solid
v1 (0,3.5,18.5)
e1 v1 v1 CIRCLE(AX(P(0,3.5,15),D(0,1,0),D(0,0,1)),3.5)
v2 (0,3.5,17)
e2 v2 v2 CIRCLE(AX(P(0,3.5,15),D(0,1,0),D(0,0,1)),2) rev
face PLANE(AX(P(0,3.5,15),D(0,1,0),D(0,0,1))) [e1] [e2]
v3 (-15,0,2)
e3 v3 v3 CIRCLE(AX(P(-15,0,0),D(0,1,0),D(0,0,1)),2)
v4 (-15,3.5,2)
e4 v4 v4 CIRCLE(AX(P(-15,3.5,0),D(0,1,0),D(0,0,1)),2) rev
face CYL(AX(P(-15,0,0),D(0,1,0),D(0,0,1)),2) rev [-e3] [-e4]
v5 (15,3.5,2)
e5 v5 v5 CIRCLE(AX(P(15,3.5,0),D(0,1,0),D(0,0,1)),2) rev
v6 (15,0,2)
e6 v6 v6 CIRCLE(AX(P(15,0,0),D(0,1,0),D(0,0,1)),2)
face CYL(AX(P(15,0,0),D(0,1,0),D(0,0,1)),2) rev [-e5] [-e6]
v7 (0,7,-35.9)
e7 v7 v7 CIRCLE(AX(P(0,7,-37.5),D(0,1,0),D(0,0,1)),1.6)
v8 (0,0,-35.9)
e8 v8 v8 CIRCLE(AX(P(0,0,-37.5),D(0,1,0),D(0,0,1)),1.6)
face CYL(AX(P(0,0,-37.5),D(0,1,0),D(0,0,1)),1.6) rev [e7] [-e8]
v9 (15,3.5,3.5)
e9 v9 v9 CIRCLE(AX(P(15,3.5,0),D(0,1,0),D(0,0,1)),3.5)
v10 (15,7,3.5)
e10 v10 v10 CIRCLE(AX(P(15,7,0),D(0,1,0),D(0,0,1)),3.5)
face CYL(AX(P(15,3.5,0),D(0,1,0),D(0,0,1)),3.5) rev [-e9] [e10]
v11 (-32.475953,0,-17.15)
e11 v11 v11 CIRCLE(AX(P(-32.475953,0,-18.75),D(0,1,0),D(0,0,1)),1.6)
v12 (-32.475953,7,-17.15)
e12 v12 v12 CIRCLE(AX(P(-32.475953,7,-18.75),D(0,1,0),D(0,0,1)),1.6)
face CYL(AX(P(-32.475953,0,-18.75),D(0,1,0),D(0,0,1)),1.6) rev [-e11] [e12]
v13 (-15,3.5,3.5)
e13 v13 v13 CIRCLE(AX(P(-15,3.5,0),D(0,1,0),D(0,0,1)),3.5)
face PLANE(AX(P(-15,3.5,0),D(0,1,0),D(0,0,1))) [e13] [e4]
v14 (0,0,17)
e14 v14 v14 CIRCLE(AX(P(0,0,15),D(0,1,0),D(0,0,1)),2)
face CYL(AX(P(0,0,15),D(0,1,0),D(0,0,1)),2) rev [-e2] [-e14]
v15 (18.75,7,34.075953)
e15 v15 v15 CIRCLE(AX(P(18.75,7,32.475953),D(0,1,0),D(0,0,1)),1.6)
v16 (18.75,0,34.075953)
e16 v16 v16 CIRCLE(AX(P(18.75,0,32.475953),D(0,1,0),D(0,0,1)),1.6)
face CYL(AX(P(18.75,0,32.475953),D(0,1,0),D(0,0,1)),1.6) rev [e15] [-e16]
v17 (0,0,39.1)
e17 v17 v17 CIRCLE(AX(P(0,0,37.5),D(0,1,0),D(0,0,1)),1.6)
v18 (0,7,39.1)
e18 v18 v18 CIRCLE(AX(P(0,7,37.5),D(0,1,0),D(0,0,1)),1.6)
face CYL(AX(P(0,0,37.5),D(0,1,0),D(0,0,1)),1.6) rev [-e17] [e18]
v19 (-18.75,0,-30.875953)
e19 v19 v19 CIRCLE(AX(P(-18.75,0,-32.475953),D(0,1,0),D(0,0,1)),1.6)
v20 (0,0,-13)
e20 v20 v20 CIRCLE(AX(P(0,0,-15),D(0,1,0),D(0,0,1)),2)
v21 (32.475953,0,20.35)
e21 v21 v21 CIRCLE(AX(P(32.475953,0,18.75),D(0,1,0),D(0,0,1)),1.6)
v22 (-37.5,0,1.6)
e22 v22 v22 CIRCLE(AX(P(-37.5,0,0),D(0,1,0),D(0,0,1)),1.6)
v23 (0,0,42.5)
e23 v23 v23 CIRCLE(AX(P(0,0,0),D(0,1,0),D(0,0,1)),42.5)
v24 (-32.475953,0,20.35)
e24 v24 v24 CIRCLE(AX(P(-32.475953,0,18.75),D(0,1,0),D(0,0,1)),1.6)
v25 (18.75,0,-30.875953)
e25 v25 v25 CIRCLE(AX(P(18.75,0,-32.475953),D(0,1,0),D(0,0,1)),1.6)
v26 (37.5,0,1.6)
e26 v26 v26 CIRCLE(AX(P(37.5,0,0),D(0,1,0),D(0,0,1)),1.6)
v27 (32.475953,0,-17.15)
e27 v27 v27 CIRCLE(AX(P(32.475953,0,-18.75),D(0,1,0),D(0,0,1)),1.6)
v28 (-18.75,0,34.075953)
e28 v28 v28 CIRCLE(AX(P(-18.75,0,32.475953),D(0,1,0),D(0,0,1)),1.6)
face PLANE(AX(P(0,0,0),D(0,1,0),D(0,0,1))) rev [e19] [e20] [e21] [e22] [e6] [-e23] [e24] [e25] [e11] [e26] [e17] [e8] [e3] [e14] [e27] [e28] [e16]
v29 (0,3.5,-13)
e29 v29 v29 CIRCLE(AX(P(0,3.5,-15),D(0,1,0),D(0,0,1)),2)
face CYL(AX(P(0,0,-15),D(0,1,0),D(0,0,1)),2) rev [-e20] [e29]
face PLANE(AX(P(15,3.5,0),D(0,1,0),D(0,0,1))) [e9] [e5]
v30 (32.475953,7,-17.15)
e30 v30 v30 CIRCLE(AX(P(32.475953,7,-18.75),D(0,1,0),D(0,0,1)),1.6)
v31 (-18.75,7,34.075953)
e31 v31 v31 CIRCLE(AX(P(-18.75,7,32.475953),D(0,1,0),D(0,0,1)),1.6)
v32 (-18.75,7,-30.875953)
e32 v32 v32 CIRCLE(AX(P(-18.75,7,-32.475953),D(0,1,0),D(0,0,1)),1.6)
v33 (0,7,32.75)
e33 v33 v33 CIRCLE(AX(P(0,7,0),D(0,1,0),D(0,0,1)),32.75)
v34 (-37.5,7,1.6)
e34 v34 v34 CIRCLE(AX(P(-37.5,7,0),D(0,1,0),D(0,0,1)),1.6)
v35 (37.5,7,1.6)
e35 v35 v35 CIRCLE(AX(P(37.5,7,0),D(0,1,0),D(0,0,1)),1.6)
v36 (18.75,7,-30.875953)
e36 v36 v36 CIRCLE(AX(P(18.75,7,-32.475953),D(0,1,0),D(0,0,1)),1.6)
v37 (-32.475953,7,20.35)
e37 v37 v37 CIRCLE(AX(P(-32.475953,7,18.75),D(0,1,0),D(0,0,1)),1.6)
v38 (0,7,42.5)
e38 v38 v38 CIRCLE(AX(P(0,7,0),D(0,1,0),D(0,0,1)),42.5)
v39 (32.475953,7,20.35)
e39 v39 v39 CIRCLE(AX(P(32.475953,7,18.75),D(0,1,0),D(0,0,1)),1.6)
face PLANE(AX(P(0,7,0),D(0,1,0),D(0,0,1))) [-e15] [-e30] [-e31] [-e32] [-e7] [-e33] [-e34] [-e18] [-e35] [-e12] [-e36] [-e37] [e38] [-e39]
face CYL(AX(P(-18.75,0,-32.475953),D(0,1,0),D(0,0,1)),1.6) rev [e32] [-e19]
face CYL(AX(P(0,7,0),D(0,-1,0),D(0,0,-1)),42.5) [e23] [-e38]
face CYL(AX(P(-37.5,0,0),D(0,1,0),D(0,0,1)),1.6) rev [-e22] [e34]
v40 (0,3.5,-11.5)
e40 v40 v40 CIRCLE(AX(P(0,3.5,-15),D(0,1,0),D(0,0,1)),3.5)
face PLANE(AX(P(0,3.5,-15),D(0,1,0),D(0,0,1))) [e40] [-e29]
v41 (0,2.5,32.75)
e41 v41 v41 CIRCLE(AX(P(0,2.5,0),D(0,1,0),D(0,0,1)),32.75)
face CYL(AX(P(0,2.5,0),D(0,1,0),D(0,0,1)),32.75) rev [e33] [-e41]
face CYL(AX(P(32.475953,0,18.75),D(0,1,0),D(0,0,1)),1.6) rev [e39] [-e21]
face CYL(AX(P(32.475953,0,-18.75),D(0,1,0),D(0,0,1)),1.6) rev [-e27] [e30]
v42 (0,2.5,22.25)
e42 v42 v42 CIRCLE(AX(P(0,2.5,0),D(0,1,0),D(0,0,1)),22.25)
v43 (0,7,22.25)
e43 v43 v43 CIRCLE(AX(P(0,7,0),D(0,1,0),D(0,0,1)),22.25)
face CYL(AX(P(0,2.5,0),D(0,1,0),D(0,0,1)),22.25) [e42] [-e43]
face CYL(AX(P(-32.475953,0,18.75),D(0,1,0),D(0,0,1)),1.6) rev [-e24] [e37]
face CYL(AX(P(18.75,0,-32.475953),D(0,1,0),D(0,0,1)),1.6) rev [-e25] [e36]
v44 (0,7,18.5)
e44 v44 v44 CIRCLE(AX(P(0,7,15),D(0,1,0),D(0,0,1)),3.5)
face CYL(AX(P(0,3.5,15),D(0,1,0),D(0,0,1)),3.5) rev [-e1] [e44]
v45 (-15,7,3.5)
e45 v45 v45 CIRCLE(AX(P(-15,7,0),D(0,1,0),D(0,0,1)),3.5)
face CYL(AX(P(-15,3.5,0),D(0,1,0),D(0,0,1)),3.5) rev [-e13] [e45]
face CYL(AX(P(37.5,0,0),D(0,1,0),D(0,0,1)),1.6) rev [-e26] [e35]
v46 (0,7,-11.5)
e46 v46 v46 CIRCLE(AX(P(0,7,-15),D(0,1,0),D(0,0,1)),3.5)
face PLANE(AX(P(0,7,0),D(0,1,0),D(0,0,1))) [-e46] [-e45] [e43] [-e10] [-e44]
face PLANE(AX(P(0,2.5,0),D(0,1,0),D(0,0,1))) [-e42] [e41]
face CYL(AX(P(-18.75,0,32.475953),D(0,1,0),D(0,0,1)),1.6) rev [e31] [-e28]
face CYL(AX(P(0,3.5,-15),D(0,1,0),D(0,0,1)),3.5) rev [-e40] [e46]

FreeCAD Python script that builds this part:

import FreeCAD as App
import Part
import Sketcher
Q = App.Units.Quantity

doc = App.newDocument("Part")
params = doc.addObject("Spreadsheet::Sheet", "Params")
for row, (alias, value) in enumerate([
    ("sketch1_diameter", "85 mm"),
    ("pad1_length", "7 mm"),
    ("sketch2_diameter", "65.5 mm"),
    ("sketch2_diameter2", "44.5 mm"),
    ("pocket1_length", "4.5 mm"),
    ("sketch3_diameter", "3.2 mm"),
    ("sketch4_diameter", "4 mm"),
    ("sketch5_diameter", "7 mm"),
    ("sketch5_diameter2", "4 mm"),
    ("pocket4_length", "3.5 mm"),
], start=1):
    params.set(f"A{row}", alias)
    params.set(f"B{row}", "=" + value)
    params.setAlias(f"B{row}", alias)

body = doc.addObject("PartDesign::Body", "Body")

# Sketch on XZ plane
sketch1 = doc.addObject("Sketcher::SketchObject", "Sketch")
body.addObject(sketch1)
sketch1.AttachmentSupport = (doc.XZ_Plane, [""])
sketch1.MapMode = "FlatFace"
sketch1.addGeometry(Part.Circle(App.Vector(0, 0, 0), App.Vector(0, 0, 1), 42.5), False)
sketch1.addConstraint([
    Sketcher.Constraint("Coincident", 0, 3, -1, 1),
    Sketcher.Constraint("Diameter", 0, Q("85 mm")),
])
sketch1.setExpression("Constraints[1]", "Params.sketch1_diameter")
pad1 = doc.addObject("PartDesign::Pad", "Pad")
body.addObject(pad1)
pad1.Profile = sketch1
pad1.setExpression("Length", "Params.pad1_length")
pad1.Reversed = True

# Sketch on XZ plane
sketch2 = doc.addObject("Sketcher::SketchObject", "Sketch001")
body.addObject(sketch2)
sketch2.AttachmentSupport = (doc.XZ_Plane, [""])
sketch2.MapMode = "FlatFace"
sketch2.AttachmentOffset = App.Placement(App.Vector(0, 0, -7), App.Rotation())
sketch2.addGeometry([
    Part.Circle(App.Vector(0, 0, 0), App.Vector(0, 0, 1), 32.75),
    Part.Circle(App.Vector(0, 0, 0), App.Vector(0, 0, 1), 22.25),
], False)
sketch2.addConstraint([
    Sketcher.Constraint("Coincident", 0, 3, -1, 1),
    Sketcher.Constraint("Coincident", 1, 3, -1, 1),
    Sketcher.Constraint("Diameter", 0, Q("65.5 mm")),
    Sketcher.Constraint("Diameter", 1, Q("44.5 mm")),
])
sketch2.setExpression("Constraints[2]", "Params.sketch2_diameter")
sketch2.setExpression("Constraints[3]", "Params.sketch2_diameter2")
pocket1 = doc.addObject("PartDesign::Pocket", "Pocket")
body.addObject(pocket1)
pocket1.Profile = sketch2
pocket1.setExpression("Length", "Params.pocket1_length")
pocket1.Reversed = True

# Sketch on XZ plane
sketch3 = doc.addObject("Sketcher::SketchObject", "Sketch002")
body.addObject(sketch3)
sketch3.AttachmentSupport = (doc.XZ_Plane, [""])
sketch3.MapMode = "FlatFace"
sketch3.AttachmentOffset = App.Placement(App.Vector(0, 0, -7), App.Rotation())
sketch3.addGeometry([
    Part.Circle(App.Vector(0, -37.5, 0), App.Vector(0, 0, 1), 1.6),  # 0
    Part.Circle(App.Vector(18.75, -32.475953, 0), App.Vector(0, 0, 1), 1.6),  # 1
    Part.Circle(App.Vector(32.475953, -18.75, 0), App.Vector(0, 0, 1), 1.6),  # 2
    Part.Circle(App.Vector(37.5, 0, 0), App.Vector(0, 0, 1), 1.6),  # 3
    Part.Circle(App.Vector(32.475953, 18.75, 0), App.Vector(0, 0, 1), 1.6),  # 4
    Part.Circle(App.Vector(18.75, 32.475953, 0), App.Vector(0, 0, 1), 1.6),  # 5
    Part.Circle(App.Vector(0, 37.5, 0), App.Vector(0, 0, 1), 1.6),  # 6
    Part.Circle(App.Vector(-18.75, 32.475953, 0), App.Vector(0, 0, 1), 1.6),  # 7
    Part.Circle(App.Vector(-32.475953, 18.75, 0), App.Vector(0, 0, 1), 1.6),  # 8
    Part.Circle(App.Vector(-37.5, 0, 0), App.Vector(0, 0, 1), 1.6),  # 9
    Part.Circle(App.Vector(-32.475953, -18.75, 0), App.Vector(0, 0, 1), 1.6),  # 10
    Part.Circle(App.Vector(-18.75, -32.475953, 0), App.Vector(0, 0, 1), 1.6),  # 11
], False)
sketch3.addConstraint([
    Sketcher.Constraint("Equal", 0, 1),
    Sketcher.Constraint("Equal", 1, 2),
    Sketcher.Constraint("Equal", 2, 3),
    Sketcher.Constraint("Equal", 3, 4),
    Sketcher.Constraint("Equal", 4, 5),
    Sketcher.Constraint("Equal", 5, 6),
    Sketcher.Constraint("Equal", 6, 7),
    Sketcher.Constraint("Equal", 7, 8),
    Sketcher.Constraint("Equal", 8, 9),
    Sketcher.Constraint("Equal", 9, 10),
    Sketcher.Constraint("Equal", 10, 11),
    Sketcher.Constraint("Symmetric", 0, 3, 6, 3, -1, 1),
    Sketcher.Constraint("Symmetric", 1, 3, 7, 3, -1, 1),
    Sketcher.Constraint("Symmetric", 2, 3, 8, 3, -1, 1),
    Sketcher.Constraint("Symmetric", 3, 3, 9, 3, -1, 1),
    Sketcher.Constraint("Symmetric", 4, 3, 10, 3, -1, 1),
    Sketcher.Constraint("Symmetric", 5, 3, 11, 3, -1, 1),
    Sketcher.Constraint("Symmetric", 5, 3, 7, 3, -2),
    Sketcher.Constraint("Symmetric", 4, 3, 8, 3, -2),
    Sketcher.Constraint("PointOnObject", 0, 3, -2),
    Sketcher.Constraint("PointOnObject", 3, 3, -1),
    Sketcher.Constraint("Diameter", 0, Q("3.2 mm")),
    Sketcher.Constraint("DistanceY", 0, 3, -1, 1, Q("37.5 mm")),
    Sketcher.Constraint("DistanceX", -1, 1, 3, 3, Q("37.5 mm")),
    Sketcher.Constraint("DistanceY", 2, 3, 4, 3, Q("37.5 mm")),
    Sketcher.Constraint("DistanceX", 7, 3, 5, 3, Q("37.5 mm")),
    Sketcher.Constraint("DistanceY", 1, 3, -1, 1, Q("32.475953 mm")),
    Sketcher.Constraint("DistanceX", -1, 1, 2, 3, Q("32.475953 mm")),
])
sketch3.setExpression("Constraints[21]", "Params.sketch3_diameter")
pocket2 = doc.addObject("PartDesign::Pocket", "Pocket001")
body.addObject(pocket2)
pocket2.Profile = sketch3
pocket2.Type = "ThroughAll"
pocket2.Reversed = True

# Sketch on XZ plane
sketch4 = doc.addObject("Sketcher::SketchObject", "Sketch003")
body.addObject(sketch4)
sketch4.AttachmentSupport = (doc.XZ_Plane, [""])
sketch4.MapMode = "FlatFace"
sketch4.AttachmentOffset = App.Placement(App.Vector(0, 0, -7), App.Rotation())
sketch4.addGeometry([
    Part.Circle(App.Vector(0, -15, 0), App.Vector(0, 0, 1), 2),
    Part.Circle(App.Vector(15, 0, 0), App.Vector(0, 0, 1), 2),
    Part.Circle(App.Vector(0, 15, 0), App.Vector(0, 0, 1), 2),
    Part.Circle(App.Vector(-15, 0, 0), App.Vector(0, 0, 1), 2),
], False)
sketch4.addConstraint([
    Sketcher.Constraint("Equal", 0, 1),
    Sketcher.Constraint("Equal", 1, 2),
    Sketcher.Constraint("Equal", 2, 3),
    Sketcher.Constraint("Symmetric", 0, 3, 2, 3, -1, 1),
    Sketcher.Constraint("Symmetric", 1, 3, 3, 3, -1, 1),
    Sketcher.Constraint("PointOnObject", 0, 3, -2),
    Sketcher.Constraint("PointOnObject", 1, 3, -1),
    Sketcher.Constraint("Diameter", 0, Q("4 mm")),
    Sketcher.Constraint("DistanceY", 0, 3, -1, 1, Q("15 mm")),
    Sketcher.Constraint("DistanceX", -1, 1, 1, 3, Q("15 mm")),
])
sketch4.setExpression("Constraints[7]", "Params.sketch4_diameter")
pocket3 = doc.addObject("PartDesign::Pocket", "Pocket002")
body.addObject(pocket3)
pocket3.Profile = sketch4
pocket3.Type = "ThroughAll"
pocket3.Reversed = True

# Sketch on XZ plane
sketch5 = doc.addObject("Sketcher::SketchObject", "Sketch004")
body.addObject(sketch5)
sketch5.AttachmentSupport = (doc.XZ_Plane, [""])
sketch5.MapMode = "FlatFace"
sketch5.AttachmentOffset = App.Placement(App.Vector(0, 0, -7), App.Rotation())
sketch5.addGeometry([
    Part.Circle(App.Vector(0, -15, 0), App.Vector(0, 0, 1), 3.5),  # 0
    Part.Circle(App.Vector(0, -15, 0), App.Vector(0, 0, 1), 2),  # 1
    Part.Circle(App.Vector(15, 0, 0), App.Vector(0, 0, 1), 3.5),  # 2
    Part.Circle(App.Vector(0, 15, 0), App.Vector(0, 0, 1), 3.5),  # 3
    Part.Circle(App.Vector(-15, 0, 0), App.Vector(0, 0, 1), 3.5),  # 4
], False)
sketch5.addConstraint([
    Sketcher.Constraint("Coincident", 1, 3, 0, 3),
    Sketcher.Constraint("Equal", 0, 2),
    Sketcher.Constraint("Equal", 2, 3),
    Sketcher.Constraint("Equal", 3, 4),
    Sketcher.Constraint("Symmetric", 0, 3, 3, 3, -1, 1),
    Sketcher.Constraint("Symmetric", 2, 3, 4, 3, -1, 1),
    Sketcher.Constraint("PointOnObject", 0, 3, -2),
    Sketcher.Constraint("PointOnObject", 2, 3, -1),
    Sketcher.Constraint("Diameter", 0, Q("7 mm")),
    Sketcher.Constraint("Diameter", 1, Q("4 mm")),
    Sketcher.Constraint("DistanceY", 0, 3, -1, 1, Q("15 mm")),
    Sketcher.Constraint("DistanceX", -1, 1, 2, 3, Q("15 mm")),
])
sketch5.setExpression("Constraints[8]", "Params.sketch5_diameter")
sketch5.setExpression("Constraints[9]", "Params.sketch5_diameter2")
pocket4 = doc.addObject("PartDesign::Pocket", "Pocket003")
body.addObject(pocket4)
pocket4.Profile = sketch5
pocket4.setExpression("Length", "Params.pocket4_length")
pocket4.Reversed = True

doc.recompute()
